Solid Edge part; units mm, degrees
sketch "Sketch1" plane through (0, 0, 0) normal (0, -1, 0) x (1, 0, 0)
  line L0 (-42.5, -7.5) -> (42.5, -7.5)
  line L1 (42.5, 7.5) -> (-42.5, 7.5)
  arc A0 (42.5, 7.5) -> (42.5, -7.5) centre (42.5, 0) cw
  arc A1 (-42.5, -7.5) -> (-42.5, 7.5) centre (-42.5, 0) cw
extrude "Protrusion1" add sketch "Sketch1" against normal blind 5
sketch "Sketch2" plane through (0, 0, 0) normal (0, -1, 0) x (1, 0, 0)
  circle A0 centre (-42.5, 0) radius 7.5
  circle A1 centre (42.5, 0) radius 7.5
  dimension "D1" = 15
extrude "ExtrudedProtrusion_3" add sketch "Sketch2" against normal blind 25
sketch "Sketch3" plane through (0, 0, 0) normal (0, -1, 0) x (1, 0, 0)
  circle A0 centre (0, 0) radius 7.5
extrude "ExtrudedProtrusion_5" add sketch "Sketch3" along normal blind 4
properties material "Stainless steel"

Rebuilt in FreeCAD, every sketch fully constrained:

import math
import FreeCAD as App
import Part
import Sketcher
from FreeCAD import Vector
Q = App.Units.Quantity

doc = App.newDocument("Part")
body = doc.addObject("PartDesign::Body", "Body")

# Sketch on XZ plane
sketch1 = body.newObject("Sketcher::SketchObject", "Sketch")
sketch1.AttachmentSupport = (doc.getObject("XZ_Plane"), [""])
sketch1.MapMode = "FlatFace"
sketch1.addGeometry(Part.ArcOfCircle(Part.Circle(Vector(-42, 0, 0), Vector(0, 0, 1), 8), math.radians(90), math.radians(270)), False)
sketch1.addGeometry(Part.LineSegment(Vector(-42, -8, 0), Vector(42, -8, 0)), False)
sketch1.addGeometry(Part.ArcOfCircle(Part.Circle(Vector(42, 0, 0), Vector(0, 0, 1), 8), math.radians(-90), math.radians(90)), False)
sketch1.addGeometry(Part.LineSegment(Vector(42, 8, 0), Vector(-42, 8, 0)), False)
sketch1.addConstraint(Sketcher.Constraint("Tangent", 0, 2, 1, 1))
sketch1.addConstraint(Sketcher.Constraint("Tangent", 1, 2, 2, 1))
sketch1.addConstraint(Sketcher.Constraint("Tangent", 2, 2, 3, 1))
sketch1.addConstraint(Sketcher.Constraint("Tangent", 3, 2, 0, 1))
sketch1.addConstraint(Sketcher.Constraint("Horizontal", 1))
sketch1.addConstraint(Sketcher.Constraint("Horizontal", 3))
sketch1.addConstraint(Sketcher.Constraint("Symmetric", 0, 3, 2, 3, -1, 1))
sketch1.addConstraint(Sketcher.Constraint("Radius", 0, Q("7.5 mm")))
sketch1.addConstraint(Sketcher.Constraint("DistanceX", 1, 1, 1, 2, Q("85 mm")))
pad1 = body.newObject("PartDesign::Pad", "Pad")
pad1.Profile = sketch1
pad1.Length = 5
pad1.Reversed = True

# Sketch on XZ plane
sketch2 = body.newObject("Sketcher::SketchObject", "Sketch001")
sketch2.AttachmentSupport = (doc.getObject("XZ_Plane"), [""])
sketch2.MapMode = "FlatFace"
sketch2.addGeometry(Part.Circle(Vector(-42, 0, 0), Vector(0, 0, 1), 8), False)
sketch2.addGeometry(Part.Circle(Vector(42, 0, 0), Vector(0, 0, 1), 8), False)
sketch2.addConstraint(Sketcher.Constraint("Equal", 0, 1))
sketch2.addConstraint(Sketcher.Constraint("Symmetric", 0, 3, 1, 3, -1, 1))
sketch2.addConstraint(Sketcher.Constraint("PointOnObject", 0, 3, -1))
sketch2.addConstraint(Sketcher.Constraint("Diameter", 0, Q("15 mm")))
sketch2.addConstraint(Sketcher.Constraint("DistanceX", 0, 3, 1, 3, Q("85 mm")))
pad2 = body.newObject("PartDesign::Pad", "Pad001")
pad2.Profile = sketch2
pad2.Length = 25
pad2.Reversed = True

# Sketch on XZ plane
sketch3 = body.newObject("Sketcher::SketchObject", "Sketch002")
sketch3.AttachmentSupport = (doc.getObject("XZ_Plane"), [""])
sketch3.MapMode = "FlatFace"
sketch3.addGeometry(Part.Circle(Vector(0, 0, 0), Vector(0, 0, 1), 8), False)
sketch3.addConstraint(Sketcher.Constraint("Coincident", 0, 3, -1, 1))
sketch3.addConstraint(Sketcher.Constraint("Diameter", 0, Q("15 mm")))
pad3 = body.newObject("PartDesign::Pad", "Pad002")
pad3.Profile = sketch3
pad3.Length = 4

doc.recompute()
